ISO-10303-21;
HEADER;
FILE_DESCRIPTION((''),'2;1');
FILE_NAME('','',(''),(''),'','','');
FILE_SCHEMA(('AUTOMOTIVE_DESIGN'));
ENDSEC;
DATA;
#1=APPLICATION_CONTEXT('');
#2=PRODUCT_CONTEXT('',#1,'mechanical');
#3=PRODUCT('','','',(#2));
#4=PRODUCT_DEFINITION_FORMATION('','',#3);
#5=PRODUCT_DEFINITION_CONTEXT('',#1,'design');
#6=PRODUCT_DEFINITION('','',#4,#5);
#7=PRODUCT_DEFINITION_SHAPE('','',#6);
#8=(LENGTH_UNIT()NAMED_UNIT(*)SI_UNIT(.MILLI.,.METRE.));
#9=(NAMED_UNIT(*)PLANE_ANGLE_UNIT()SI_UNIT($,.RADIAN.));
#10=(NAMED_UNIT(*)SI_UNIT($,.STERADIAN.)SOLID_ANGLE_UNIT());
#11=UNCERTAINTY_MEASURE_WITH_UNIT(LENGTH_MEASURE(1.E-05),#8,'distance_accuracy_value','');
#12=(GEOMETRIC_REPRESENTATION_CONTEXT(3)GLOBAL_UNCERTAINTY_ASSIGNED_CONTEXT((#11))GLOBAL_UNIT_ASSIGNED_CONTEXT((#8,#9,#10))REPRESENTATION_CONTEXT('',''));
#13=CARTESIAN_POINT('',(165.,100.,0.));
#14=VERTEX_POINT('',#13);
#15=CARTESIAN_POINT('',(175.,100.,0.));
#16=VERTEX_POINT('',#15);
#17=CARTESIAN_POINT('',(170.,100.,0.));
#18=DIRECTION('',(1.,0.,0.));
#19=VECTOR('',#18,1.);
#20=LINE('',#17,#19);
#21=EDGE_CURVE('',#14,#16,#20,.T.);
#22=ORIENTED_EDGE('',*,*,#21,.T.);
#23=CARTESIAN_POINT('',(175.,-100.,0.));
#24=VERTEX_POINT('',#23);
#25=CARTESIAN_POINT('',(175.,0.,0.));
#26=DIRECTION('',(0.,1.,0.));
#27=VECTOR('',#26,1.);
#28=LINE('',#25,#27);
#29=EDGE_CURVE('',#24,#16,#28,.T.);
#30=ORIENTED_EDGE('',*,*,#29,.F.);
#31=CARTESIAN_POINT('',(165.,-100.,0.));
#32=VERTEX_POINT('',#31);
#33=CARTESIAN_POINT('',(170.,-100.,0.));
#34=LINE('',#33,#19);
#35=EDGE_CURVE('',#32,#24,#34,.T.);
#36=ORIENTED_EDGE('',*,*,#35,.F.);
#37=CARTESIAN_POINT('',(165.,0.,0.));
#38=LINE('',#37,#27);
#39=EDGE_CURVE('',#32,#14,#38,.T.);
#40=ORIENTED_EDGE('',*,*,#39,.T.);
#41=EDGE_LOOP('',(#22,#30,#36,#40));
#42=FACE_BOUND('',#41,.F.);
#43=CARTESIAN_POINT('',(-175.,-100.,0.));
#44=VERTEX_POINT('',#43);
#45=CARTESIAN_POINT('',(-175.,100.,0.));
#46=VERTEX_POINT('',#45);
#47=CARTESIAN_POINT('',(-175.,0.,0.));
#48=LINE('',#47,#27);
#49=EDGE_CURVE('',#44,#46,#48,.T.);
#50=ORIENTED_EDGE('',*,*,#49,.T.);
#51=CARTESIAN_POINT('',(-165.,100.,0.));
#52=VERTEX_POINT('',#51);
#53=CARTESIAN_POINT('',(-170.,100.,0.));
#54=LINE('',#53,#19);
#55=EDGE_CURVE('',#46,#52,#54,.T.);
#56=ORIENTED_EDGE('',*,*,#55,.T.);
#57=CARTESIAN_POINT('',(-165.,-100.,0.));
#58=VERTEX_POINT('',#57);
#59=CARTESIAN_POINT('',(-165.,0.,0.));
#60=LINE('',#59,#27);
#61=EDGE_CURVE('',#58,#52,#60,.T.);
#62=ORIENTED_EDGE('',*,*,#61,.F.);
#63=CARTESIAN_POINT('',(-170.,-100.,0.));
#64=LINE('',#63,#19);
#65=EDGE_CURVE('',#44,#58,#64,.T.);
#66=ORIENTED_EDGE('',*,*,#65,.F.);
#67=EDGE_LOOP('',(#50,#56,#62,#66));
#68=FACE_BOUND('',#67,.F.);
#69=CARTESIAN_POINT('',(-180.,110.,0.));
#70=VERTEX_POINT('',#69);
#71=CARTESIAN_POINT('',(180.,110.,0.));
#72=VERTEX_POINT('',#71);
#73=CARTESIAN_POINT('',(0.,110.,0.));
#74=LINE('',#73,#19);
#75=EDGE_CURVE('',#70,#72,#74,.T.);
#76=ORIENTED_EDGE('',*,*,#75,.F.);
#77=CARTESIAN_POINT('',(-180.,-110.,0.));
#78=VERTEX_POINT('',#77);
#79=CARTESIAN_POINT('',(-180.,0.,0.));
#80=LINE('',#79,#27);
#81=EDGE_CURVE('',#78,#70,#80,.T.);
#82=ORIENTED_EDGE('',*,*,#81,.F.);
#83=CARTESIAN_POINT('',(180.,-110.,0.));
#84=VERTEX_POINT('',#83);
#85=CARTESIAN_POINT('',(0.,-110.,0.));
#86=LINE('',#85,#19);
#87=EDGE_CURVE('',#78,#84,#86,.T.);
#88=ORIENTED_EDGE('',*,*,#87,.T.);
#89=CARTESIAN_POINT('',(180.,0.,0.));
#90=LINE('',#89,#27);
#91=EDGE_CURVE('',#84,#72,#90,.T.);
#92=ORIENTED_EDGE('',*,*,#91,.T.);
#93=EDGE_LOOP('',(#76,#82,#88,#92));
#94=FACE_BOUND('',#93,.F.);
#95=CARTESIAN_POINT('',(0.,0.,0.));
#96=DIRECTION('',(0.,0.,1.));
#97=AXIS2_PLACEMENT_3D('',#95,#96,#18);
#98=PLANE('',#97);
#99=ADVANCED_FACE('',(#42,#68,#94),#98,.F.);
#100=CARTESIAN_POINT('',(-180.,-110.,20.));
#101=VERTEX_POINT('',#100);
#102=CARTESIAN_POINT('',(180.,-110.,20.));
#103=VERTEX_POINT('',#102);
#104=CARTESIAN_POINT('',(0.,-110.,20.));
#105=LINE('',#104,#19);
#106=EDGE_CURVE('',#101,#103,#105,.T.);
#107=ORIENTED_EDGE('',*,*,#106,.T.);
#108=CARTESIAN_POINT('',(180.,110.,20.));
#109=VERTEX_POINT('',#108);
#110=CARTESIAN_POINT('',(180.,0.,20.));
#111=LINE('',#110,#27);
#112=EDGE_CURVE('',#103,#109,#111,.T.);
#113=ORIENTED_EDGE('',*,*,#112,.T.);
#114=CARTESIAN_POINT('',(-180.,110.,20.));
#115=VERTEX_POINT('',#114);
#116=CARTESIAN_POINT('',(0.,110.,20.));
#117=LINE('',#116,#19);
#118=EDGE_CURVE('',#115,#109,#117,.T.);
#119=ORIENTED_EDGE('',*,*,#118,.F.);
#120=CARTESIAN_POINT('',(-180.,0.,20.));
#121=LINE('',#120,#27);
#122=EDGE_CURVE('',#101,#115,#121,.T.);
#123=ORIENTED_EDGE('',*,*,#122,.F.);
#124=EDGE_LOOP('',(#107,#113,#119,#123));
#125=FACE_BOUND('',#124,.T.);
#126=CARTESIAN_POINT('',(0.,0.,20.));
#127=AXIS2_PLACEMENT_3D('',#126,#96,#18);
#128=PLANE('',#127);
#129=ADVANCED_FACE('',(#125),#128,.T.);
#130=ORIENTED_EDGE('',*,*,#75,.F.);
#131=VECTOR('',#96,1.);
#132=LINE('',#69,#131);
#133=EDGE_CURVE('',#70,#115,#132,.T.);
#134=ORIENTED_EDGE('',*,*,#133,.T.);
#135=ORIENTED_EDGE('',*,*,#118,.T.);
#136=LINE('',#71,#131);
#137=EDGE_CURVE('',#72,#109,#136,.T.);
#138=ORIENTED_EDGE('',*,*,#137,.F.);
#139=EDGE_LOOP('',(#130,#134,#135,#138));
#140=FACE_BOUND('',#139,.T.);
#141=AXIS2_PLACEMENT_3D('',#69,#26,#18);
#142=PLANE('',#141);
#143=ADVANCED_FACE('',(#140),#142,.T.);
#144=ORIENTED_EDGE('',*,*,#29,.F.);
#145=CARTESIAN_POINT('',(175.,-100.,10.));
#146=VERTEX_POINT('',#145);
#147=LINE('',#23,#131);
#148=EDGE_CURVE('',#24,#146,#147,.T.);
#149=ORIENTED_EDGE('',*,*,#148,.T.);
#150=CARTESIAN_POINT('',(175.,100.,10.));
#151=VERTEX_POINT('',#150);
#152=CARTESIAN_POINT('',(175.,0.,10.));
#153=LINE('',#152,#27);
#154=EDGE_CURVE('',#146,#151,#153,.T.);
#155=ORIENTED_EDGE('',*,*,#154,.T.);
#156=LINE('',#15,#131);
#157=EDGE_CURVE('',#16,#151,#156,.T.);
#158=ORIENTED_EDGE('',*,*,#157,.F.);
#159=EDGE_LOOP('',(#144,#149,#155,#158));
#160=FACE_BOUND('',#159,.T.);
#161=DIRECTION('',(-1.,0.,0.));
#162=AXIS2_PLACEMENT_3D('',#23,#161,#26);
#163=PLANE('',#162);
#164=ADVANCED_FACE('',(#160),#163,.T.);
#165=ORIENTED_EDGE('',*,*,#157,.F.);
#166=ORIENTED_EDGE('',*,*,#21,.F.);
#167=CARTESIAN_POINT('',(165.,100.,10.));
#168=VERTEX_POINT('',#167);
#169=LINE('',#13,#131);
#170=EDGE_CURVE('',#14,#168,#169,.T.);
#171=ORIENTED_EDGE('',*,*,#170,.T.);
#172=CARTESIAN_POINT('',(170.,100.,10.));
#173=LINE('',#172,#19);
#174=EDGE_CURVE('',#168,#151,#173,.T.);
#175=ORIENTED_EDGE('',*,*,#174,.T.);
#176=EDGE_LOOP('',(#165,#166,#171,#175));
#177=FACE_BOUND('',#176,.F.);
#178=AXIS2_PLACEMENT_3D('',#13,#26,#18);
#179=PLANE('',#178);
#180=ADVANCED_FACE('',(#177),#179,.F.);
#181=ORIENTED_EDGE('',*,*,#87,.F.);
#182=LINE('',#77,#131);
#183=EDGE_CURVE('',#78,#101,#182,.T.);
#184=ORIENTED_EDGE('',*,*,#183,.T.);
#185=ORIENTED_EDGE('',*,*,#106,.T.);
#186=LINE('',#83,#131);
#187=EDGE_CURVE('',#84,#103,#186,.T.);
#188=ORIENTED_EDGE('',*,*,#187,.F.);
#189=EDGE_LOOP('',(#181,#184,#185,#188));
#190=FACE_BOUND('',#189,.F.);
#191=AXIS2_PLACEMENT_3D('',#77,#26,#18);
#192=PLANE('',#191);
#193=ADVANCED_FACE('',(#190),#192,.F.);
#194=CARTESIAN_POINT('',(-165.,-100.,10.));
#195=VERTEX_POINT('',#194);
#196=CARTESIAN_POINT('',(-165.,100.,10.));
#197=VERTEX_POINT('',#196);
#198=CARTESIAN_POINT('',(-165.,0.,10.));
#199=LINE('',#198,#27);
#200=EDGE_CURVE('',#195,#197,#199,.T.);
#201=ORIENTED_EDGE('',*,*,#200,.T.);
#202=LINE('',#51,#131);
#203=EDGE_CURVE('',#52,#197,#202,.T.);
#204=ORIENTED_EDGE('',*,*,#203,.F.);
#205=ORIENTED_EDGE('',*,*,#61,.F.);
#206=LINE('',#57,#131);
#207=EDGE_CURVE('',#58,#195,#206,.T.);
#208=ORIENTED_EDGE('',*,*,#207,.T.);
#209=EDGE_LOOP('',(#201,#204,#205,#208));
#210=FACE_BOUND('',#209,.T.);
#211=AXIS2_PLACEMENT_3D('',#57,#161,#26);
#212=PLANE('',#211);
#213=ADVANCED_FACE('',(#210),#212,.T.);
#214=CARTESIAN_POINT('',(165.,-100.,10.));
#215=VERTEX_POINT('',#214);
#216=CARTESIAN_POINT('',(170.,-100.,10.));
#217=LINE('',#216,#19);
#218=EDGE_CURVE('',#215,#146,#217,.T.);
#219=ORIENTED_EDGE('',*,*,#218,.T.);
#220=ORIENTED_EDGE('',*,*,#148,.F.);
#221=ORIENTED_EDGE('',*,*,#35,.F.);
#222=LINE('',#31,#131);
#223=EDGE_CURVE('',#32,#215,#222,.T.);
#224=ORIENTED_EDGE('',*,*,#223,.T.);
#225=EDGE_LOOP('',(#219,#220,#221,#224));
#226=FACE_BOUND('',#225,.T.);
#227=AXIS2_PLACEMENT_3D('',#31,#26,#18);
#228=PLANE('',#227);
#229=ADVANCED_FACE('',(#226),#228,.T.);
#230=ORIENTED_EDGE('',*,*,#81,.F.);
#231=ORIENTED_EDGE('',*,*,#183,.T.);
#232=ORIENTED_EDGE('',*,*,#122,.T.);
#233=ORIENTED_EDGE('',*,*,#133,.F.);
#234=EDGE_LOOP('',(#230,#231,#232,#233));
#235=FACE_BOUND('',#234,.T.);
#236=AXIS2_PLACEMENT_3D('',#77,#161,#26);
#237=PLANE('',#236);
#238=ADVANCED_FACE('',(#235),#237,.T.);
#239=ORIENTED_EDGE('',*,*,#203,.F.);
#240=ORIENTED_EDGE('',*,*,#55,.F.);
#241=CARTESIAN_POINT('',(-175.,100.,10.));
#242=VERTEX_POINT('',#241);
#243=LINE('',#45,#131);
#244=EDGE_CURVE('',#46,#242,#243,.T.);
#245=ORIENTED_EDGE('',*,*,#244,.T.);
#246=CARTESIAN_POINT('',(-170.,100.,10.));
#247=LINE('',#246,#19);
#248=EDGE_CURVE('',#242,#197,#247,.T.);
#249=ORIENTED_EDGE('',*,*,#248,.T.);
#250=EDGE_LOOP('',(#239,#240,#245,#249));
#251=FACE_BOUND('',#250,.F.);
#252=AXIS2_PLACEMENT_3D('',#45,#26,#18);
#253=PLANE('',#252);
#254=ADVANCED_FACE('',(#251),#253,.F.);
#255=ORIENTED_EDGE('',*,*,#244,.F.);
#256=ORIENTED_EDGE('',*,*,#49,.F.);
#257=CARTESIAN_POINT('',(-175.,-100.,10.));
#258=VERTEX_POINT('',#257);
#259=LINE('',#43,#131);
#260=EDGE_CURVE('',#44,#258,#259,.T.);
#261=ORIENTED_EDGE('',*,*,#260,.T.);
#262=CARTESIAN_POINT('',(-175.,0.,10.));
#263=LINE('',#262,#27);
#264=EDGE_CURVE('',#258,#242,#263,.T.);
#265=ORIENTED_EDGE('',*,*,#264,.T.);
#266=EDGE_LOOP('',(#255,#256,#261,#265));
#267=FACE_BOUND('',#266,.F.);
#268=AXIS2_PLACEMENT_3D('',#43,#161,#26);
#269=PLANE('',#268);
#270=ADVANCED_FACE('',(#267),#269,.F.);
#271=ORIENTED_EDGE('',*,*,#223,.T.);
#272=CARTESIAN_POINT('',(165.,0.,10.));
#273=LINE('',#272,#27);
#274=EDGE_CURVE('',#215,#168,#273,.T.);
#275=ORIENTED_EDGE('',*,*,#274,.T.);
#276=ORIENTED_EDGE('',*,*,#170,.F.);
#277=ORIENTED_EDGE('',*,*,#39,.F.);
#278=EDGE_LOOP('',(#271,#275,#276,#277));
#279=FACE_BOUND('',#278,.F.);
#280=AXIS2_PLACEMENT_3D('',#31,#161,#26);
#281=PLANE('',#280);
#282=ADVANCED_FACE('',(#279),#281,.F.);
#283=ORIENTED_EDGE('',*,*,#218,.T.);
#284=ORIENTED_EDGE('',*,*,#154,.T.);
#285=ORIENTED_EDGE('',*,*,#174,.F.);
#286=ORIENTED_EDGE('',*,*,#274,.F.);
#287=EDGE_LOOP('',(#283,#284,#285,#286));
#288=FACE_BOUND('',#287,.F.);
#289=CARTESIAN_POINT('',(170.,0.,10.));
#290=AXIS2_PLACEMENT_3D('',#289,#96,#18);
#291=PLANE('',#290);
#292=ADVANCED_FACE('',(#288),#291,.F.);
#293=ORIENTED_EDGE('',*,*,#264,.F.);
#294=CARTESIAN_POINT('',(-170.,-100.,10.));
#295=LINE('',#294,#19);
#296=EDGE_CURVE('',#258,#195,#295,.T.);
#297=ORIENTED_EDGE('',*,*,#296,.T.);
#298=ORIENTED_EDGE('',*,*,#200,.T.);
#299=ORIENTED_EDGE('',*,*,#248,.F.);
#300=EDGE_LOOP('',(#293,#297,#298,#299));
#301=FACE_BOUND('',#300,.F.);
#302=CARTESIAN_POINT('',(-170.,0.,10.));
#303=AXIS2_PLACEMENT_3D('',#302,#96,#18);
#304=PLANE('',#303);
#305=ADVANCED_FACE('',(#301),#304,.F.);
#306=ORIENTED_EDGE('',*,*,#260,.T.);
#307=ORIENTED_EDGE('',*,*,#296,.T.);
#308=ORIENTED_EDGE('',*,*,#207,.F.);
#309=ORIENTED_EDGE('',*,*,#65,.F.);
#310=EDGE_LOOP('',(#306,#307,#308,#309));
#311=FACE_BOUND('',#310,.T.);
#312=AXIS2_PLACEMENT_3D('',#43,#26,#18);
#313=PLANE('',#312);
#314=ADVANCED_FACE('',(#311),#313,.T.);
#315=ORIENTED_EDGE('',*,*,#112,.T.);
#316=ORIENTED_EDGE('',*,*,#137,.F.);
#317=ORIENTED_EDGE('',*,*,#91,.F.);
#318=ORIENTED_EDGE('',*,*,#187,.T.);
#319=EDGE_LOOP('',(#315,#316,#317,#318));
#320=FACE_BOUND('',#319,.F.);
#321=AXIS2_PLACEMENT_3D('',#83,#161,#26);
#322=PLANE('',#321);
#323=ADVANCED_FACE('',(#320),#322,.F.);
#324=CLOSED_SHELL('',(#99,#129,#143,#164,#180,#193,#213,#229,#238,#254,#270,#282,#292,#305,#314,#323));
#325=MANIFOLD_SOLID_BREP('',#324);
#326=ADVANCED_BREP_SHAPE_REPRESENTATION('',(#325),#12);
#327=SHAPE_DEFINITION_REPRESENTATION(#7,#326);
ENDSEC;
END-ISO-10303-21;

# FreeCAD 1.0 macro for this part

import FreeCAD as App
import Part
import Sketcher
Q = App.Units.Quantity

doc = App.newDocument("Part")
body = doc.addObject("PartDesign::Body", "Body")

sketch1 = body.newObject("Sketcher::SketchObject", "Sketch")
sketch1.AttachmentSupport = (doc.getObject("XY_Plane"), [""])
sketch1.MapMode = "FlatFace"
sketch1.addGeometry(Part.LineSegment(App.Vector(-180, 110, 0), App.Vector(-180, -110, 0)), False)
sketch1.addGeometry(Part.LineSegment(App.Vector(-180, -110, 0), App.Vector(180, -110, 0)), False)
sketch1.addGeometry(Part.LineSegment(App.Vector(180, -110, 0), App.Vector(180, 110, 0)), False)
sketch1.addGeometry(Part.LineSegment(App.Vector(180, 110, 0), App.Vector(-180, 110, 0)), False)
sketch1.addConstraint(Sketcher.Constraint("Coincident", 0, 2, 1, 1))
sketch1.addConstraint(Sketcher.Constraint("Coincident", 1, 2, 2, 1))
sketch1.addConstraint(Sketcher.Constraint("Coincident", 2, 2, 3, 1))
sketch1.addConstraint(Sketcher.Constraint("Coincident", 3, 2, 0, 1))
sketch1.addConstraint(Sketcher.Constraint("Vertical", 0))
sketch1.addConstraint(Sketcher.Constraint("Horizontal", 1))
sketch1.addConstraint(Sketcher.Constraint("Vertical", 2))
sketch1.addConstraint(Sketcher.Constraint("Horizontal", 3))
sketch1.addConstraint(Sketcher.Constraint("Symmetric", 0, 2, 2, 2, -1, 1))
sketch1.addConstraint(Sketcher.Constraint("DistanceX", 1, 1, 1, 2, Q("360 mm")))
sketch1.addConstraint(Sketcher.Constraint("DistanceY", 0, 2, 0, 1, Q("220 mm")))
pad1 = body.newObject("PartDesign::Pad", "Pad")
pad1.Profile = sketch1
pad1.Length = 20

sketch2 = body.newObject("Sketcher::SketchObject", "Sketch001")
sketch2.AttachmentSupport = (doc.getObject("XY_Plane"), [""])
sketch2.MapMode = "FlatFace"
sketch2.addGeometry(Part.LineSegment(App.Vector(-175, 100, 0), App.Vector(-175, -100, 0)), False)
sketch2.addGeometry(Part.LineSegment(App.Vector(-175, -100, 0), App.Vector(-165, -100, 0)), False)
sketch2.addGeometry(Part.LineSegment(App.Vector(-165, -100, 0), App.Vector(-165, 100, 0)), False)
sketch2.addGeometry(Part.LineSegment(App.Vector(-165, 100, 0), App.Vector(-175, 100, 0)), False)
sketch2.addConstraint(Sketcher.Constraint("Coincident", 0, 2, 1, 1))
sketch2.addConstraint(Sketcher.Constraint("Coincident", 1, 2, 2, 1))
sketch2.addConstraint(Sketcher.Constraint("Coincident", 2, 2, 3, 1))
sketch2.addConstraint(Sketcher.Constraint("Coincident", 3, 2, 0, 1))
sketch2.addConstraint(Sketcher.Constraint("Vertical", 0))
sketch2.addConstraint(Sketcher.Constraint("Horizontal", 1))
sketch2.addConstraint(Sketcher.Constraint("Vertical", 2))
sketch2.addConstraint(Sketcher.Constraint("Horizontal", 3))
sketch2.addConstraint(Sketcher.Constraint("DistanceX", 1, 1, 1, 2, Q("10 mm")))
sketch2.addConstraint(Sketcher.Constraint("DistanceY", 0, 2, 0, 1, Q("200 mm")))
sketch2.addConstraint(Sketcher.Constraint("DistanceX", 0, 2, -1, 1, Q("175 mm")))
sketch2.addConstraint(Sketcher.Constraint("DistanceY", 0, 2, -1, 1, Q("100 mm")))
pocket1 = body.newObject("PartDesign::Pocket", "Pocket")
pocket1.Profile = sketch2
pocket1.Length = 10
pocket1.Reversed = True

sketch3 = body.newObject("Sketcher::SketchObject", "Sketch002")
sketch3.AttachmentSupport = (doc.getObject("XY_Plane"), [""])
sketch3.MapMode = "FlatFace"
sketch3.addGeometry(Part.LineSegment(App.Vector(165, 100, 0), App.Vector(165, -100, 0)), False)
sketch3.addGeometry(Part.LineSegment(App.Vector(165, -100, 0), App.Vector(175, -100, 0)), False)
sketch3.addGeometry(Part.LineSegment(App.Vector(175, -100, 0), App.Vector(175, 100, 0)), False)
sketch3.addGeometry(Part.LineSegment(App.Vector(175, 100, 0), App.Vector(165, 100, 0)), False)
sketch3.addConstraint(Sketcher.Constraint("Coincident", 0, 2, 1, 1))
sketch3.addConstraint(Sketcher.Constraint("Coincident", 1, 2, 2, 1))
sketch3.addConstraint(Sketcher.Constraint("Coincident", 2, 2, 3, 1))
sketch3.addConstraint(Sketcher.Constraint("Coincident", 3, 2, 0, 1))
sketch3.addConstraint(Sketcher.Constraint("Vertical", 0))
sketch3.addConstraint(Sketcher.Constraint("Horizontal", 1))
sketch3.addConstraint(Sketcher.Constraint("Vertical", 2))
sketch3.addConstraint(Sketcher.Constraint("Horizontal", 3))
sketch3.addConstraint(Sketcher.Constraint("DistanceX", 1, 1, 1, 2, Q("10 mm")))
sketch3.addConstraint(Sketcher.Constraint("DistanceY", 0, 2, 0, 1, Q("200 mm")))
sketch3.addConstraint(Sketcher.Constraint("DistanceX", -1, 1, 0, 2, Q("165 mm")))
sketch3.addConstraint(Sketcher.Constraint("DistanceY", 0, 2, -1, 1, Q("100 mm")))
pocket2 = body.newObject("PartDesign::Pocket", "Pocket001")
pocket2.Profile = sketch3
pocket2.Length = 10
pocket2.Reversed = True

doc.recompute()
